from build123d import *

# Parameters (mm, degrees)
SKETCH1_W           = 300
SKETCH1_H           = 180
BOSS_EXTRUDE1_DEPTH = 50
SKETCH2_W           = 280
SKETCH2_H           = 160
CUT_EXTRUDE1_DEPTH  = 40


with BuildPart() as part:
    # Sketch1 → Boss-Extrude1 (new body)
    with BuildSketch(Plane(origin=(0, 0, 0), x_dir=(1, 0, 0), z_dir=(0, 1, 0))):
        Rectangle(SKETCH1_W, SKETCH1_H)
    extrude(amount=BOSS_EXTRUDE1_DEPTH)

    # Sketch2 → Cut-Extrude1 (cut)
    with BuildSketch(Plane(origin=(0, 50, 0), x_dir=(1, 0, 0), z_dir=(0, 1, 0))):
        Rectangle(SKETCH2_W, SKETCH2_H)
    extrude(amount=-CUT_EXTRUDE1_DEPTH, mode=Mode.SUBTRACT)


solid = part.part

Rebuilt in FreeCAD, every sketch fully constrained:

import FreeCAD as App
import Part
import Sketcher
Q = App.Units.Quantity

doc = App.newDocument("Part")
params = doc.addObject("Spreadsheet::Sheet", "Params")
for row, (alias, value) in enumerate([
    ("sketch1_width", "300 mm"),
    ("sketch1_height", "180 mm"),
    ("pad1_length", "50 mm"),
    ("sketch2_width", "280 mm"),
    ("sketch2_height", "160 mm"),
    ("pocket1_length", "40 mm"),
], start=1):
    params.set(f"A{row}", alias)
    params.set(f"B{row}", "=" + value)
    params.setAlias(f"B{row}", alias)

body = doc.addObject("PartDesign::Body", "Body")

# Sketch on XZ plane
sketch1 = body.newObject("Sketcher::SketchObject", "Sketch")
sketch1.AttachmentSupport = (doc.getObject("XZ_Plane"), [""])
sketch1.MapMode = "FlatFace"
sketch1.addGeometry(Part.LineSegment(App.Vector(-150, -90, 0), App.Vector(-150, 90, 0)), False)
sketch1.addGeometry(Part.LineSegment(App.Vector(-150, 90, 0), App.Vector(150, 90, 0)), False)
sketch1.addGeometry(Part.LineSegment(App.Vector(150, 90, 0), App.Vector(150, -90, 0)), False)
sketch1.addGeometry(Part.LineSegment(App.Vector(150, -90, 0), App.Vector(-150, -90, 0)), False)
sketch1.addConstraint(Sketcher.Constraint("Coincident", 0, 2, 1, 1))
sketch1.addConstraint(Sketcher.Constraint("Coincident", 1, 2, 2, 1))
sketch1.addConstraint(Sketcher.Constraint("Coincident", 2, 2, 3, 1))
sketch1.addConstraint(Sketcher.Constraint("Coincident", 3, 2, 0, 1))
sketch1.addConstraint(Sketcher.Constraint("Vertical", 0))
sketch1.addConstraint(Sketcher.Constraint("Horizontal", 1))
sketch1.addConstraint(Sketcher.Constraint("Vertical", 2))
sketch1.addConstraint(Sketcher.Constraint("Horizontal", 3))
sketch1.addConstraint(Sketcher.Constraint("Symmetric", 0, 2, 2, 2, -1, 1))
sketch1.addConstraint(Sketcher.Constraint("DistanceX", 1, 1, 1, 2, Q("300 mm")))
sketch1.addConstraint(Sketcher.Constraint("DistanceY", 0, 1, 0, 2, Q("180 mm")))
sketch1.setExpression("Constraints[9]", "Params.sketch1_width")
sketch1.setExpression("Constraints[10]", "Params.sketch1_height")
pad1 = body.newObject("PartDesign::Pad", "Pad")
pad1.Profile = sketch1
pad1.setExpression("Length", "Params.pad1_length")
pad1.Reversed = True

# Sketch on XZ plane
sketch2 = body.newObject("Sketcher::SketchObject", "Sketch001")
sketch2.AttachmentSupport = (doc.getObject("XZ_Plane"), [""])
sketch2.MapMode = "FlatFace"
sketch2.AttachmentOffset = App.Placement(App.Vector(0, 0, -50), App.Rotation())
sketch2.addGeometry(Part.LineSegment(App.Vector(-140, -80, 0), App.Vector(-140, 80, 0)), False)
sketch2.addGeometry(Part.LineSegment(App.Vector(-140, 80, 0), App.Vector(140, 80, 0)), False)
sketch2.addGeometry(Part.LineSegment(App.Vector(140, 80, 0), App.Vector(140, -80, 0)), False)
sketch2.addGeometry(Part.LineSegment(App.Vector(140, -80, 0), App.Vector(-140, -80, 0)), False)
sketch2.addConstraint(Sketcher.Constraint("Coincident", 0, 2, 1, 1))
sketch2.addConstraint(Sketcher.Constraint("Coincident", 1, 2, 2, 1))
sketch2.addConstraint(Sketcher.Constraint("Coincident", 2, 2, 3, 1))
sketch2.addConstraint(Sketcher.Constraint("Coincident", 3, 2, 0, 1))
sketch2.addConstraint(Sketcher.Constraint("Vertical", 0))
sketch2.addConstraint(Sketcher.Constraint("Horizontal", 1))
sketch2.addConstraint(Sketcher.Constraint("Vertical", 2))
sketch2.addConstraint(Sketcher.Constraint("Horizontal", 3))
sketch2.addConstraint(Sketcher.Constraint("Symmetric", 0, 2, 2, 2, -1, 1))
sketch2.addConstraint(Sketcher.Constraint("DistanceX", 1, 1, 1, 2, Q("280 mm")))
sketch2.addConstraint(Sketcher.Constraint("DistanceY", 0, 1, 0, 2, Q("160 mm")))
sketch2.setExpression("Constraints[9]", "Params.sketch2_width")
sketch2.setExpression("Constraints[10]", "Params.sketch2_height")
pocket1 = body.newObject("PartDesign::Pocket", "Pocket")
pocket1.Profile = sketch2
pocket1.setExpression("Length", "Params.pocket1_length")
pocket1.Reversed = True

doc.recompute()
